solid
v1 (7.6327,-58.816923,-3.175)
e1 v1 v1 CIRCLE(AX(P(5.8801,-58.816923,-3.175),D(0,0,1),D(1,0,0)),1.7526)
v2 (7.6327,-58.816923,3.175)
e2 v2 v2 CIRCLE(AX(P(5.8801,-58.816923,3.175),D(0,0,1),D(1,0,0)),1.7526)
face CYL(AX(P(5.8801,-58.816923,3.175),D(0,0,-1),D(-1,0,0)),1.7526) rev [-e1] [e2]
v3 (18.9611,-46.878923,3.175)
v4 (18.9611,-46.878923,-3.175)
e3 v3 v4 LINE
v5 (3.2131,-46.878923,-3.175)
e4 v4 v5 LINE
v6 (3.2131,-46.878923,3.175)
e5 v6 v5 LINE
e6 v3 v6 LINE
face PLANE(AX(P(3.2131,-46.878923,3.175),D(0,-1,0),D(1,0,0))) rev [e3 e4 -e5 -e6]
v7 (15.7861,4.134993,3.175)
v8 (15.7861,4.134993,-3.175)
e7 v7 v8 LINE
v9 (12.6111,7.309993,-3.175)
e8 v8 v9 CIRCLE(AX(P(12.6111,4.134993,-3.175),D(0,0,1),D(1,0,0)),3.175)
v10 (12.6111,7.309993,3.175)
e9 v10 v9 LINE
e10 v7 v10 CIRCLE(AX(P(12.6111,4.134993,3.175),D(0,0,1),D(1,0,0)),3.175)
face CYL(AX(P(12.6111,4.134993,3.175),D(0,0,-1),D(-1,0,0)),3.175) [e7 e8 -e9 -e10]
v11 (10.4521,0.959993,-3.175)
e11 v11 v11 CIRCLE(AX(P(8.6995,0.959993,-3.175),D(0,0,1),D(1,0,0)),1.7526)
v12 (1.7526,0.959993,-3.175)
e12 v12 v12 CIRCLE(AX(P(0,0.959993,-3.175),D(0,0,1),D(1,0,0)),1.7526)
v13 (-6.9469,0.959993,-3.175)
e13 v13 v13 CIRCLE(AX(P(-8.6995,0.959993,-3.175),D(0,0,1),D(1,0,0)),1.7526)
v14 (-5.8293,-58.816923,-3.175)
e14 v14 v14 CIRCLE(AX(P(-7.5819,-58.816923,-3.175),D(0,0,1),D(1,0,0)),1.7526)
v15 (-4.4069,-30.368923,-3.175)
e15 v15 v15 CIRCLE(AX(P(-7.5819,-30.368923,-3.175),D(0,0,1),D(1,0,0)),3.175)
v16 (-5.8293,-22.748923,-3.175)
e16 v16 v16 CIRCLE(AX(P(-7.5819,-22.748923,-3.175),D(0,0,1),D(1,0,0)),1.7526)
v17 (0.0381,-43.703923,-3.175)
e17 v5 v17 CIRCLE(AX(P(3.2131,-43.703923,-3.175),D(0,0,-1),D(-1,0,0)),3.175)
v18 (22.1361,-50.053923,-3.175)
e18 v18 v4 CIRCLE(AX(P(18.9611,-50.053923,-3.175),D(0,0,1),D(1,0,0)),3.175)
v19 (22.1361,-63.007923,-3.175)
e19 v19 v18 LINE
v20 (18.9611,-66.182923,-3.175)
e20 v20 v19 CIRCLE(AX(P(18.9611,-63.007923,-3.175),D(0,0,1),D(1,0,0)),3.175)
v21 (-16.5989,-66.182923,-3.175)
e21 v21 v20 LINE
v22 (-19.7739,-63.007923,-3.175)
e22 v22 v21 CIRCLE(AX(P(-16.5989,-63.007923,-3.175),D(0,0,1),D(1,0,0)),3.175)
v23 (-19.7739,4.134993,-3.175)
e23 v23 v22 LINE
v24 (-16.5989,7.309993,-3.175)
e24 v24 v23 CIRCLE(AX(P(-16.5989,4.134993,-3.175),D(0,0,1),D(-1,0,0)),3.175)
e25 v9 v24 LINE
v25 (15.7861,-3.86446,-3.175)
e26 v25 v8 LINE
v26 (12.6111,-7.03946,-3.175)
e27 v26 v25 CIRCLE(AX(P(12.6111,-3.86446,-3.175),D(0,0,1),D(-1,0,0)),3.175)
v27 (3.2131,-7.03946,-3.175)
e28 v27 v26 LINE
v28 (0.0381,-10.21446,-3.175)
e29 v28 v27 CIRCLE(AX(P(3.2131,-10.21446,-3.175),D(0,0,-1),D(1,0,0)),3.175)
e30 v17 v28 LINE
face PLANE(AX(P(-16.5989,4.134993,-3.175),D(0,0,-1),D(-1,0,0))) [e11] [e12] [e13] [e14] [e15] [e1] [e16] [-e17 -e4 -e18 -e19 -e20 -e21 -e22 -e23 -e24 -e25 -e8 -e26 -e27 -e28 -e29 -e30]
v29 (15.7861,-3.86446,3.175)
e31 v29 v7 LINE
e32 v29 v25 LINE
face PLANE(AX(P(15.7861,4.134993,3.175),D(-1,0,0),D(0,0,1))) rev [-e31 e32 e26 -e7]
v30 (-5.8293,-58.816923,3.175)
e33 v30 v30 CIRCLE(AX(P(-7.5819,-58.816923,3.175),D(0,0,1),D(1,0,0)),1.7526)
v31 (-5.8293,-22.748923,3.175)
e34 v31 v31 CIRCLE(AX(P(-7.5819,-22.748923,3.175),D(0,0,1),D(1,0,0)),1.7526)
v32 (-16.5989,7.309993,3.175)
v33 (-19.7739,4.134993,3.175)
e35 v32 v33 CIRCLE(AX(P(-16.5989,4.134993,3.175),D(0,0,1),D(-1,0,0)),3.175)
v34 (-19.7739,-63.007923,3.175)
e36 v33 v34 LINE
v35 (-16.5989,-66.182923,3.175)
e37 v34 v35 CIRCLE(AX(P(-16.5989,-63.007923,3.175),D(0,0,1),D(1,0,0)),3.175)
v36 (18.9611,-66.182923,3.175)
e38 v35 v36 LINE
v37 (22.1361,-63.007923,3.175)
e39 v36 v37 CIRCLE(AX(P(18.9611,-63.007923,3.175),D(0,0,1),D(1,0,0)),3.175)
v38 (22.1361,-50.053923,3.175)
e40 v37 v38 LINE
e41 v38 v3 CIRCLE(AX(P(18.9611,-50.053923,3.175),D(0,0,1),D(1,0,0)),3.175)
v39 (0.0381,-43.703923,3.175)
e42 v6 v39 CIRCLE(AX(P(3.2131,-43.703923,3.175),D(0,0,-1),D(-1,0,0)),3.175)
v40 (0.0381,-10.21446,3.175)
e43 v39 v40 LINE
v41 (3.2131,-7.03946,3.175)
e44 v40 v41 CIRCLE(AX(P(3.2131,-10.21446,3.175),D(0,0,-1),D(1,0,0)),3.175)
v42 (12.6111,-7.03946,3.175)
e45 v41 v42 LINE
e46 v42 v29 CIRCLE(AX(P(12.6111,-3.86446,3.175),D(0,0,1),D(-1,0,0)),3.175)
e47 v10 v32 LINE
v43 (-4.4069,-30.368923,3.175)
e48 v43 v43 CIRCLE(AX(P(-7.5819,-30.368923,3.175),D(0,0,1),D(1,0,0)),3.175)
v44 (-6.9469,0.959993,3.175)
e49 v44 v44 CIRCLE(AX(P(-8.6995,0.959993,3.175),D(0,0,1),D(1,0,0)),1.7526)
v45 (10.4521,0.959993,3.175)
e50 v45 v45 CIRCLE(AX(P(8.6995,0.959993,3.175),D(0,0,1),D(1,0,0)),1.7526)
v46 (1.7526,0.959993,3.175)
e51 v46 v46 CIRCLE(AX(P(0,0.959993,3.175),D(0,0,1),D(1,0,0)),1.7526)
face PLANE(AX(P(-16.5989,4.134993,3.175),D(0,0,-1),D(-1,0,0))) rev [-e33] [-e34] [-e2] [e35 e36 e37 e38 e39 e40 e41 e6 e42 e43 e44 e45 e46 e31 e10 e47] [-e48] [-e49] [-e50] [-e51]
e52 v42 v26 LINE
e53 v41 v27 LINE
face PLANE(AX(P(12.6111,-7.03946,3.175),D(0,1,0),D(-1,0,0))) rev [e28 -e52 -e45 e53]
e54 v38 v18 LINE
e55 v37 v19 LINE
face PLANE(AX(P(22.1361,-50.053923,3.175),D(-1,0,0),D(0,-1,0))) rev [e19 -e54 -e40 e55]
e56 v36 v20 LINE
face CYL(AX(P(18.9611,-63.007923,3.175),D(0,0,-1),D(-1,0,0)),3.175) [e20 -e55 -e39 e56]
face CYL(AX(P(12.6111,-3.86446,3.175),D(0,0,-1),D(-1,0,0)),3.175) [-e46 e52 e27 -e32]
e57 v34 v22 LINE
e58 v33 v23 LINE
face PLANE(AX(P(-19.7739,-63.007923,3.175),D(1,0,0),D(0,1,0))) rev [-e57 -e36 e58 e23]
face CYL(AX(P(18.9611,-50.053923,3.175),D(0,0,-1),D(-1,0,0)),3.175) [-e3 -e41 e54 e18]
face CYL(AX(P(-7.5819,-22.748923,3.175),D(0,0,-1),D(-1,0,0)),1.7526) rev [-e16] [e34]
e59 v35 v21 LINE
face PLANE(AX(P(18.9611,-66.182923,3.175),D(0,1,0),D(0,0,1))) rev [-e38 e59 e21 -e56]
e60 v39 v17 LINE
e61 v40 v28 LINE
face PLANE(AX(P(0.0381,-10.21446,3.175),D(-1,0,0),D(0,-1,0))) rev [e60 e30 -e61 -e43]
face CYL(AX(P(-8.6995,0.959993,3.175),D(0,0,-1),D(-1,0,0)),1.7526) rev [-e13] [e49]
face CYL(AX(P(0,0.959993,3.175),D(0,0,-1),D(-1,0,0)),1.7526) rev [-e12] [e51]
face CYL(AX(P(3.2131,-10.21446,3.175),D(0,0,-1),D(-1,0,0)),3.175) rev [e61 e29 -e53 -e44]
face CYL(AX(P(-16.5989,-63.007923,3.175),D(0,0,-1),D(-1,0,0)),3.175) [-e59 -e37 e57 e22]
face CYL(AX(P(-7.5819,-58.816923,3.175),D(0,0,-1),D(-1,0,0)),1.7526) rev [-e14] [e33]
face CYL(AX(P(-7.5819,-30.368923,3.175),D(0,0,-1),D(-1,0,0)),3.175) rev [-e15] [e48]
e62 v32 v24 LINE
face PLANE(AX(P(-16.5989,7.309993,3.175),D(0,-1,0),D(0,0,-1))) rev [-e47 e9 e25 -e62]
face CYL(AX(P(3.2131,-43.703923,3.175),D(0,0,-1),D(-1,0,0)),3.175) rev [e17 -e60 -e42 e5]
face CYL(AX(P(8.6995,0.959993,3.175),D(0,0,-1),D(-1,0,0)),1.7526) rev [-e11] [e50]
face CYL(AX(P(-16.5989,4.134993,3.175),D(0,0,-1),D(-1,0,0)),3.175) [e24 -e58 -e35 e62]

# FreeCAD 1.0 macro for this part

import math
import FreeCAD as App
import Part
import Sketcher
Q = App.Units.Quantity

doc = App.newDocument("Part")
body = doc.addObject("PartDesign::Body", "Body")

# Sketch on XY plane
sketch1 = body.newObject("Sketcher::SketchObject", "Sketch")
sketch1.AttachmentSupport = (doc.getObject("XY_Plane"), [""])
sketch1.MapMode = "FlatFace"
sketch1.addGeometry(Part.LineSegment(App.Vector(12.6111, 7.309993, 0), App.Vector(-16.5989, 7.309993, 0)), False)
sketch1.addGeometry(Part.ArcOfCircle(Part.Circle(App.Vector(-16.5989, 4.134993, 0), App.Vector(0, 0, 1), 3.175), math.radians(90), math.radians(180)), False)
sketch1.addGeometry(Part.LineSegment(App.Vector(-19.7739, 4.134993, 0), App.Vector(-19.7739, -63.007923, 0)), False)
sketch1.addGeometry(Part.ArcOfCircle(Part.Circle(App.Vector(-16.5989, -63.007923, 0), App.Vector(0, 0, 1), 3.175), math.radians(180), math.radians(270)), False)
sketch1.addGeometry(Part.LineSegment(App.Vector(-16.5989, -66.182923, 0), App.Vector(18.9611, -66.182923, 0)), False)
sketch1.addGeometry(Part.ArcOfCircle(Part.Circle(App.Vector(18.9611, -63.007923, 0), App.Vector(0, 0, 1), 3.175), math.radians(-90), math.radians(0)), False)
sketch1.addGeometry(Part.LineSegment(App.Vector(22.1361, -63.007923, 0), App.Vector(22.1361, -50.053923, 0)), False)
sketch1.addGeometry(Part.ArcOfCircle(Part.Circle(App.Vector(18.9611, -50.053923, 0), App.Vector(0, 0, 1), 3.175), math.radians(0), math.radians(90)), False)
sketch1.addGeometry(Part.LineSegment(App.Vector(18.9611, -46.878923, 0), App.Vector(3.2131, -46.878923, 0)), False)
sketch1.addGeometry(Part.ArcOfCircle(Part.Circle(App.Vector(3.2131, -43.703923, 0), App.Vector(0, 0, 1), 3.175), math.radians(180), math.radians(270)), False)
sketch1.addGeometry(Part.LineSegment(App.Vector(0.0381, -43.703923, 0), App.Vector(0.0381, -10.21446, 0)), False)
sketch1.addGeometry(Part.ArcOfCircle(Part.Circle(App.Vector(3.2131, -10.21446, 0), App.Vector(0, 0, 1), 3.175), math.radians(90), math.radians(180)), False)
sketch1.addGeometry(Part.LineSegment(App.Vector(3.2131, -7.03946, 0), App.Vector(12.6111, -7.03946, 0)), False)
sketch1.addGeometry(Part.ArcOfCircle(Part.Circle(App.Vector(12.6111, -3.86446, 0), App.Vector(0, 0, 1), 3.175), math.radians(-90), math.radians(0)), False)
sketch1.addGeometry(Part.LineSegment(App.Vector(15.7861, -3.86446, 0), App.Vector(15.7861, 4.134993, 0)), False)
sketch1.addGeometry(Part.ArcOfCircle(Part.Circle(App.Vector(12.6111, 4.134993, 0), App.Vector(0, 0, 1), 3.175), math.radians(0), math.radians(90)), False)
sketch1.addGeometry(Part.Circle(App.Vector(5.8801, -58.816923, 0), App.Vector(0, 0, 1), 1.7526), False)
sketch1.addGeometry(Part.Circle(App.Vector(-7.5819, -58.816923, 0), App.Vector(0, 0, 1), 1.7526), False)
sketch1.addGeometry(Part.Circle(App.Vector(-7.5819, -30.368923, 0), App.Vector(0, 0, 1), 3.175), False)
sketch1.addGeometry(Part.Circle(App.Vector(8.6995, 0.959993, 0), App.Vector(0, 0, 1), 1.7526), False)
sketch1.addGeometry(Part.Circle(App.Vector(0, 0.959993, 0), App.Vector(0, 0, 1), 1.7526), False)
sketch1.addGeometry(Part.Circle(App.Vector(-7.5819, -22.748923, 0), App.Vector(0, 0, 1), 1.7526), False)
sketch1.addGeometry(Part.Circle(App.Vector(-8.6995, 0.959993, 0), App.Vector(0, 0, 1), 1.7526), False)
sketch1.addConstraint(Sketcher.Constraint("Tangent", 0, 2, 1, 1))
sketch1.addConstraint(Sketcher.Constraint("Tangent", 1, 2, 2, 1))
sketch1.addConstraint(Sketcher.Constraint("Tangent", 2, 2, 3, 1))
sketch1.addConstraint(Sketcher.Constraint("Tangent", 3, 2, 4, 1))
sketch1.addConstraint(Sketcher.Constraint("Tangent", 4, 2, 5, 1))
sketch1.addConstraint(Sketcher.Constraint("Tangent", 5, 2, 6, 1))
sketch1.addConstraint(Sketcher.Constraint("Tangent", 6, 2, 7, 1))
sketch1.addConstraint(Sketcher.Constraint("Tangent", 7, 2, 8, 1))
sketch1.addConstraint(Sketcher.Constraint("Tangent", 8, 2, 9, 2))
sketch1.addConstraint(Sketcher.Constraint("Tangent", 9, 1, 10, 1))
sketch1.addConstraint(Sketcher.Constraint("Tangent", 10, 2, 11, 2))
sketch1.addConstraint(Sketcher.Constraint("Tangent", 11, 1, 12, 1))
sketch1.addConstraint(Sketcher.Constraint("Tangent", 12, 2, 13, 1))
sketch1.addConstraint(Sketcher.Constraint("Tangent", 13, 2, 14, 1))
sketch1.addConstraint(Sketcher.Constraint("Tangent", 14, 2, 15, 1))
sketch1.addConstraint(Sketcher.Constraint("Tangent", 15, 2, 0, 1))
sketch1.addConstraint(Sketcher.Constraint("Horizontal", 0))
sketch1.addConstraint(Sketcher.Constraint("Vertical", 2))
sketch1.addConstraint(Sketcher.Constraint("Horizontal", 4))
sketch1.addConstraint(Sketcher.Constraint("Vertical", 6))
sketch1.addConstraint(Sketcher.Constraint("Horizontal", 8))
sketch1.addConstraint(Sketcher.Constraint("Vertical", 10))
sketch1.addConstraint(Sketcher.Constraint("Horizontal", 12))
sketch1.addConstraint(Sketcher.Constraint("Vertical", 14))
sketch1.addConstraint(Sketcher.Constraint("Equal", 1, 3))
sketch1.addConstraint(Sketcher.Constraint("Equal", 3, 5))
sketch1.addConstraint(Sketcher.Constraint("Equal", 5, 7))
sketch1.addConstraint(Sketcher.Constraint("Equal", 7, 9))
sketch1.addConstraint(Sketcher.Constraint("Equal", 9, 11))
sketch1.addConstraint(Sketcher.Constraint("Equal", 11, 13))
sketch1.addConstraint(Sketcher.Constraint("Equal", 13, 15))
sketch1.addConstraint(Sketcher.Constraint("Equal", 16, 17))
sketch1.addConstraint(Sketcher.Constraint("Equal", 15, 18))
sketch1.addConstraint(Sketcher.Constraint("Equal", 17, 19))
sketch1.addConstraint(Sketcher.Constraint("Equal", 19, 20))
sketch1.addConstraint(Sketcher.Constraint("Equal", 20, 21))
sketch1.addConstraint(Sketcher.Constraint("Equal", 21, 22))
sketch1.addConstraint(Sketcher.Constraint("Symmetric", 19, 3, 22, 3, -2))
sketch1.addConstraint(Sketcher.Constraint("PointOnObject", 20, 3, -2))
sketch1.addConstraint(Sketcher.Constraint("Horizontal", 16, 3, 17, 3))
sketch1.addConstraint(Sketcher.Constraint("Horizontal", 19, 3, 20, 3))
sketch1.addConstraint(Sketcher.Constraint("Vertical", 17, 3, 18, 3))
sketch1.addConstraint(Sketcher.Constraint("Vertical", 18, 3, 21, 3))
sketch1.addConstraint(Sketcher.Constraint("Diameter", 18, Q("0.25 in")))
sketch1.addConstraint(Sketcher.Constraint("Diameter", 16, Q("0.138 in")))
sketch1.addConstraint(Sketcher.Constraint("DistanceX", 4, 1, 4, 2, Q("1.4 in")))
sketch1.addConstraint(Sketcher.Constraint("DistanceX", 0, 2, 0, 1, Q("1.15 in")))
sketch1.addConstraint(Sketcher.Constraint("DistanceX", 8, 2, 8, 1, Q("0.62 in")))
sketch1.addConstraint(Sketcher.Constraint("DistanceY", 6, 1, 6, 2, Q("0.51 in")))
sketch1.addConstraint(Sketcher.Constraint("DistanceY", 18, 3, 21, 3, Q("0.3 in")))
sketch1.addConstraint(Sketcher.Constraint("DistanceX", 18, 3, 9, 1, Q("0.3 in")))
sketch1.addConstraint(Sketcher.Constraint("DistanceX", 17, 3, 16, 3, Q("0.53 in")))
sketch1.addConstraint(Sketcher.Constraint("DistanceY", 17, 3, 18, 3, Q("1.12 in")))
sketch1.addConstraint(Sketcher.Constraint("DistanceY", 22, 3, 0, 2, Q("0.25 in")))
sketch1.addConstraint(Sketcher.Constraint("DistanceY", 3, 2, 17, 3, Q("0.29 in")))
sketch1.addConstraint(Sketcher.Constraint("DistanceX", 19, 3, 15, 3, Q("0.154 in")))
sketch1.addConstraint(Sketcher.Constraint("DistanceX", 1, 3, 22, 3, Q("0.311 in")))
sketch1.addConstraint(Sketcher.Constraint("DistanceY", 2, 2, 2, 1, 67.142916))
sketch1.addConstraint(Sketcher.Constraint("DistanceY", 10, 1, 10, 2, 33.489463))
sketch1.addConstraint(Sketcher.Constraint("DistanceY", 11, 3, -1, 1, 10.21446))
pad1 = body.newObject("PartDesign::Pad", "Pad")
pad1.Profile = sketch1
pad1.Length = Q("0.25 in")
pad1.Midplane = True

doc.recompute()
